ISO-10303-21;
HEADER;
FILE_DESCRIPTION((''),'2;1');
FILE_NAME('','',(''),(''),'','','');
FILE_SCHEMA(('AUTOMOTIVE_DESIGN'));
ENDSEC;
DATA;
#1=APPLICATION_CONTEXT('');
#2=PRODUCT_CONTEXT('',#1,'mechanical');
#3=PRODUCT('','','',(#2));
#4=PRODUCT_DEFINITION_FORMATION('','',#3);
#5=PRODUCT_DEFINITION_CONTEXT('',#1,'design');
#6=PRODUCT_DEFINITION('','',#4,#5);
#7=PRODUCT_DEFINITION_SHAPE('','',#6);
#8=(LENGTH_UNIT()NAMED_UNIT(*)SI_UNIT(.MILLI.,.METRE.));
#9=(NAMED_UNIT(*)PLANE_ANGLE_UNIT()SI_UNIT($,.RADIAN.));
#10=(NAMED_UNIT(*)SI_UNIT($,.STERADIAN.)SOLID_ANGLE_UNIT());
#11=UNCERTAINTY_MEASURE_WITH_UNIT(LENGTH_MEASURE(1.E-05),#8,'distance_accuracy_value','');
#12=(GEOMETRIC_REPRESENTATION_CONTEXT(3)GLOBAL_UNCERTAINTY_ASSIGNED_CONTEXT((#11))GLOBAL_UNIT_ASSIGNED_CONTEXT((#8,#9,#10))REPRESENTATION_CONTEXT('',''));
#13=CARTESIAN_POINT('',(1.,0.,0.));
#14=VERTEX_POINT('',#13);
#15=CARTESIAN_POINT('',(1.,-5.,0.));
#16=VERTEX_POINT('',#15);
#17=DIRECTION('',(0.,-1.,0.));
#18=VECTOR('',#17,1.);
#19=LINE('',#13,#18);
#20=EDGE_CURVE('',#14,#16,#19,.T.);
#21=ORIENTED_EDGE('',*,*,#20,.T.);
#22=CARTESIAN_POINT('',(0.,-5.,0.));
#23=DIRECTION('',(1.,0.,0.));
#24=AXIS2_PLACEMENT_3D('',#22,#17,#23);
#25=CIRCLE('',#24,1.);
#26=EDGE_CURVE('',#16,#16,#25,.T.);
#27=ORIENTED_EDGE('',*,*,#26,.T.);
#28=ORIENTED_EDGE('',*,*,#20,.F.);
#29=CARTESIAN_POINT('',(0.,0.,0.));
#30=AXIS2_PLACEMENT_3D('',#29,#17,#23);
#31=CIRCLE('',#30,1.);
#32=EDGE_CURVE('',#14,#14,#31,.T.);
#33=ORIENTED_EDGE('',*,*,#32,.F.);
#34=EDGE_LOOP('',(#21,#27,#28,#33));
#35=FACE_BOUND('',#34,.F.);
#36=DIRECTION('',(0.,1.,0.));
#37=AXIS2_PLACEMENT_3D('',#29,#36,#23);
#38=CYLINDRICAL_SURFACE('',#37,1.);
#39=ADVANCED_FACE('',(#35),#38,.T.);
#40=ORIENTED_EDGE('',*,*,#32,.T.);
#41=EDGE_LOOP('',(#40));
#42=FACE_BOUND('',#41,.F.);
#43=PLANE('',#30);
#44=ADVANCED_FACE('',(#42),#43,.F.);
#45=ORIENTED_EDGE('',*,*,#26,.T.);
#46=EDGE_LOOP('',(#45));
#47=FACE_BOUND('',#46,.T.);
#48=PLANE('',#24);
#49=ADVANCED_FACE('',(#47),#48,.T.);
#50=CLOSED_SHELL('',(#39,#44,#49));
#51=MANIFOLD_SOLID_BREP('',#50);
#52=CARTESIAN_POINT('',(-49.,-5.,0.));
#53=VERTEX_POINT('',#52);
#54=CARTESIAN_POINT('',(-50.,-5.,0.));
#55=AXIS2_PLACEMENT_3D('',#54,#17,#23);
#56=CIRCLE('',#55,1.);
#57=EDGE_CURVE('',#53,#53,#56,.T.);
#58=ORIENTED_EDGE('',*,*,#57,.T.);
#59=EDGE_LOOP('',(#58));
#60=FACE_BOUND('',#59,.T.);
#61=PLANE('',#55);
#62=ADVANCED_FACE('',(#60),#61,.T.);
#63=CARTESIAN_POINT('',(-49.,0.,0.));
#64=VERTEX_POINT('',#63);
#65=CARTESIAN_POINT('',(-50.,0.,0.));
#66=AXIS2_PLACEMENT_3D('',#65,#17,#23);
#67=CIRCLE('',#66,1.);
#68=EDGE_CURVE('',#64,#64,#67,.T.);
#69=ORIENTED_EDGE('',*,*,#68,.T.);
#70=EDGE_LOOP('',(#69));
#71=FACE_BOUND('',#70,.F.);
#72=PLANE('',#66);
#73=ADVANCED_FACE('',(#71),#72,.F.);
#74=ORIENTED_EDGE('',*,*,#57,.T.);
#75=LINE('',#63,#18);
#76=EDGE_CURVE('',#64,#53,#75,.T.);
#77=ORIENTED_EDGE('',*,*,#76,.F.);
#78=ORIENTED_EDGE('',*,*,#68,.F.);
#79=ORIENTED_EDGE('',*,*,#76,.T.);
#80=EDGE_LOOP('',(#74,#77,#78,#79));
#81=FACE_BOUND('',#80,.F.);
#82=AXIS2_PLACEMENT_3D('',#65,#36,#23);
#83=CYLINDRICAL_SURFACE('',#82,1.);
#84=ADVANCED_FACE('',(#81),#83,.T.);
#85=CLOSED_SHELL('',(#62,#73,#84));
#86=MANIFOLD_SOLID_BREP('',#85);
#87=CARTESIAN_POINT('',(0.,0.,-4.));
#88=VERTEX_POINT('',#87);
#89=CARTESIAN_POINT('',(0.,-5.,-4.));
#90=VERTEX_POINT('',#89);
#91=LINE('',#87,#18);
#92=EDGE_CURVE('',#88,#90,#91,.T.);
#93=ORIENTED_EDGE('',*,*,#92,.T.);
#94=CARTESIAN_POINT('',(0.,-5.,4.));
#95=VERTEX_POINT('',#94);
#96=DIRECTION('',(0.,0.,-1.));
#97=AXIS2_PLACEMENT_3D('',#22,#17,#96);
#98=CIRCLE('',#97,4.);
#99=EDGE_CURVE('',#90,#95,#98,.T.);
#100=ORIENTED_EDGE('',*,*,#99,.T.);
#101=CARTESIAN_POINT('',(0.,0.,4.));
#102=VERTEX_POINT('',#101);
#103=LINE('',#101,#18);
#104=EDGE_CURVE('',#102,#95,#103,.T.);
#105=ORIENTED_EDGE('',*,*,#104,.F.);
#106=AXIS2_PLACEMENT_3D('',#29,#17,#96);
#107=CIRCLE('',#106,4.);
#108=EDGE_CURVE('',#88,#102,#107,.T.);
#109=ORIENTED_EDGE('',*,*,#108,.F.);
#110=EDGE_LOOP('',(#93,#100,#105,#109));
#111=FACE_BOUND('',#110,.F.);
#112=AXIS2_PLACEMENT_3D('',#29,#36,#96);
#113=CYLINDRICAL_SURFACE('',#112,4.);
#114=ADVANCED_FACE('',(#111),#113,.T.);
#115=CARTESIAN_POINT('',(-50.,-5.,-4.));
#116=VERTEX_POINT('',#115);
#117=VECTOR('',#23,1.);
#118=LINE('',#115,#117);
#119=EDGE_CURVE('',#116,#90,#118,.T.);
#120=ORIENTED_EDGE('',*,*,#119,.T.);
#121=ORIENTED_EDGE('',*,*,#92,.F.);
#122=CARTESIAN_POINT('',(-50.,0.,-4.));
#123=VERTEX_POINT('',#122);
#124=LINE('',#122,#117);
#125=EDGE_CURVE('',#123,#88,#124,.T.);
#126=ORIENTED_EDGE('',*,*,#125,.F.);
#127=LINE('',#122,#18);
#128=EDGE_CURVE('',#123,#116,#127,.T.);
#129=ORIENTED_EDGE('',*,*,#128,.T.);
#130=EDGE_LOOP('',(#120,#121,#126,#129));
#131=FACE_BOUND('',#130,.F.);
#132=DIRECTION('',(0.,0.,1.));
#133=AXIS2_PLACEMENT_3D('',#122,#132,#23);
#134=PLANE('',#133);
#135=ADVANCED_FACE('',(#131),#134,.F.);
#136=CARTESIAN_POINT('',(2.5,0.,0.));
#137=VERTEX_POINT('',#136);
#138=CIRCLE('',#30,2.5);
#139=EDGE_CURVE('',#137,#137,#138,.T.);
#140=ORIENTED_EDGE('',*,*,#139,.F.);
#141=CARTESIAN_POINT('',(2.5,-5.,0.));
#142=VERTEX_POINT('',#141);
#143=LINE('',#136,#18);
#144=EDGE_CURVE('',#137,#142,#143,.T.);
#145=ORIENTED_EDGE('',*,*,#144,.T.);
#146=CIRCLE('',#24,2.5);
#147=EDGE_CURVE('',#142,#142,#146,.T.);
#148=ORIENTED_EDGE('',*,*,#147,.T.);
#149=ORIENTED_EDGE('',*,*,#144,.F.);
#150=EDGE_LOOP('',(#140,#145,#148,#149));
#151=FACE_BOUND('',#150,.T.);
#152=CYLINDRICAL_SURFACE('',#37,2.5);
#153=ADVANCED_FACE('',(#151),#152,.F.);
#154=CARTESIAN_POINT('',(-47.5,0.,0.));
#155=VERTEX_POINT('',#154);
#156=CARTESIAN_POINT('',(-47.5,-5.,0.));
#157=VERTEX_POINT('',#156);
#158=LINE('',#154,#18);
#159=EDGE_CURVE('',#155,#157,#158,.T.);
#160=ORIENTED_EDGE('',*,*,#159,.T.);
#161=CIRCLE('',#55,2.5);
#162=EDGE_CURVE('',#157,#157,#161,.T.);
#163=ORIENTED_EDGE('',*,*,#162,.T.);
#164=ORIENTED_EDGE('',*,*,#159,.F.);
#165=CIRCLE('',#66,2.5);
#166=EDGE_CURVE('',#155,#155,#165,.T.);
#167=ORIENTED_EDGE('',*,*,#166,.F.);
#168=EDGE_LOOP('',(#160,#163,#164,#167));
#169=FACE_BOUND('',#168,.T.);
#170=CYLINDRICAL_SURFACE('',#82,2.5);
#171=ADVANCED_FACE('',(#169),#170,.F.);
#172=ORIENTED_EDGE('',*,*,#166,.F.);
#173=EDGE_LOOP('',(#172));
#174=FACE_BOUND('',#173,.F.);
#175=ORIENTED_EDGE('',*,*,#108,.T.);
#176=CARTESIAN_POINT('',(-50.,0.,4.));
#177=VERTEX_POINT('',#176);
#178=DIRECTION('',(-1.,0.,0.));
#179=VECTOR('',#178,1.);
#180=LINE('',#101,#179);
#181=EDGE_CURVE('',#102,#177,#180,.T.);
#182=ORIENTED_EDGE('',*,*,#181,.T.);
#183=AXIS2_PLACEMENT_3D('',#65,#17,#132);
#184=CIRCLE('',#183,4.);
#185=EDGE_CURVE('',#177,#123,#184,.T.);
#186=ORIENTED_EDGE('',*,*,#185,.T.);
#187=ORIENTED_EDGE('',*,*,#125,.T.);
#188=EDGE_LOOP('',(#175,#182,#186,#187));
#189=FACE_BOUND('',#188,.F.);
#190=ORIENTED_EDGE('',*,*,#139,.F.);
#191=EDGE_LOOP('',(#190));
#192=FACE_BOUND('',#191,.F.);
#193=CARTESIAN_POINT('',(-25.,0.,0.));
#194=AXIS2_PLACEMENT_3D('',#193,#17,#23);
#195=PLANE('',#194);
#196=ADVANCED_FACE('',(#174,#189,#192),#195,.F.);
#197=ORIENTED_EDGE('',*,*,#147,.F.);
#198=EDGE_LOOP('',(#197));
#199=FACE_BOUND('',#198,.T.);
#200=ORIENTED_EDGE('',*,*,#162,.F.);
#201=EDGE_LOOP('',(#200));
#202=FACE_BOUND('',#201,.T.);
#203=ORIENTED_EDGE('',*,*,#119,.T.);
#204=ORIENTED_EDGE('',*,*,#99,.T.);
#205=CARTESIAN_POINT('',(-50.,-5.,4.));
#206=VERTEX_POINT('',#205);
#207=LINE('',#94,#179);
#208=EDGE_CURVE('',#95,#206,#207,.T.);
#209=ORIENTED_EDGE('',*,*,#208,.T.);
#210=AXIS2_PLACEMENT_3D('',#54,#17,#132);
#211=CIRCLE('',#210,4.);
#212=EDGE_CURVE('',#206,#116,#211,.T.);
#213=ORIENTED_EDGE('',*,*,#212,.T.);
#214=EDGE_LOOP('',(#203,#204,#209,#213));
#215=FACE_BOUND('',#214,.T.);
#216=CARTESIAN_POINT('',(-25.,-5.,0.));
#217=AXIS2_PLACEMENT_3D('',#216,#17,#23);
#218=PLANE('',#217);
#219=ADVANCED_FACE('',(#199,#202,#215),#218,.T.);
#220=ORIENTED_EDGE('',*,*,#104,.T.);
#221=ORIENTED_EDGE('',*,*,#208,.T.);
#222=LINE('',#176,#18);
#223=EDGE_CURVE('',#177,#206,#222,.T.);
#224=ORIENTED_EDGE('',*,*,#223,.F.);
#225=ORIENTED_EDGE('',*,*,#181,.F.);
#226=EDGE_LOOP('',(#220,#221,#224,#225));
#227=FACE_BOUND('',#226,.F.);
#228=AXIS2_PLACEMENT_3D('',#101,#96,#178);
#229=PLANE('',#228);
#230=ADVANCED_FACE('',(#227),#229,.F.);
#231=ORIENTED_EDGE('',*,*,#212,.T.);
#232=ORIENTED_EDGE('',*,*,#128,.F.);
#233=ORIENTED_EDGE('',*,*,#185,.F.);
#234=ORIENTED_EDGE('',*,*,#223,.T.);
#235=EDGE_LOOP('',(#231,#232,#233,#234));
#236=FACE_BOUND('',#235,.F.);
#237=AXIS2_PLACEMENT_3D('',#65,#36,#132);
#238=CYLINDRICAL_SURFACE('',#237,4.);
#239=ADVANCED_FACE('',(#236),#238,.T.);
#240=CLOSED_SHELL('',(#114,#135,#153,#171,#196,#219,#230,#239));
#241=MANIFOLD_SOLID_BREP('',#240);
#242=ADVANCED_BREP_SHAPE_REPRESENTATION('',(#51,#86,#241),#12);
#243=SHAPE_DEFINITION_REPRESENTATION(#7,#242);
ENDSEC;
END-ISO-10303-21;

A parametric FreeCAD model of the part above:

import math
import FreeCAD as App
import Part
import Sketcher

V = App.Vector
Q = App.Units.Quantity

doc = App.newDocument("Part")
body = doc.addObject("PartDesign::Body", "Body")
body.AllowCompound = True

sketch1 = body.newObject("Sketcher::SketchObject", "Sketch")
sketch1.AttachmentSupport = (doc.getObject("XZ_Plane"), [""])
sketch1.MapMode = "FlatFace"
sketch1.addGeometry(Part.LineSegment(V(-50, -4, 0), V(0, -4, 0)), False)
sketch1.addGeometry(Part.ArcOfCircle(Part.Circle(V(0, 0, 0), V(0, 0, 1), 4), math.radians(-90), math.radians(90)), False)
sketch1.addGeometry(Part.LineSegment(V(0, 4, 0), V(-50, 4, 0)), False)
sketch1.addGeometry(Part.ArcOfCircle(Part.Circle(V(-50, 0, 0), V(0, 0, 1), 4), math.radians(90), math.radians(270)), False)
sketch1.addGeometry(Part.Circle(V(-50, 0, 0), V(0, 0, 1), 2.5), False)
sketch1.addGeometry(Part.Circle(V(0, 0, 0), V(0, 0, 1), 2.5), False)
sketch1.addGeometry(Part.Circle(V(-50, 0, 0), V(0, 0, 1), 1), False)
sketch1.addGeometry(Part.Circle(V(0, 0, 0), V(0, 0, 1), 1), False)
sketch1.addConstraint(Sketcher.Constraint("Tangent", 0, 2, 1, 1))
sketch1.addConstraint(Sketcher.Constraint("Tangent", 1, 2, 2, 1))
sketch1.addConstraint(Sketcher.Constraint("Tangent", 2, 2, 3, 1))
sketch1.addConstraint(Sketcher.Constraint("Tangent", 3, 2, 0, 1))
sketch1.addConstraint(Sketcher.Constraint("Horizontal", 0))
sketch1.addConstraint(Sketcher.Constraint("Horizontal", 2))
sketch1.addConstraint(Sketcher.Constraint("Coincident", 1, 3, -1, 1))
sketch1.addConstraint(Sketcher.Constraint("Coincident", 5, 3, -1, 1))
sketch1.addConstraint(Sketcher.Constraint("Coincident", 7, 3, -1, 1))
sketch1.addConstraint(Sketcher.Constraint("Coincident", 4, 3, 3, 3))
sketch1.addConstraint(Sketcher.Constraint("Coincident", 6, 3, 3, 3))
sketch1.addConstraint(Sketcher.Constraint("Equal", 4, 5))
sketch1.addConstraint(Sketcher.Constraint("Equal", 6, 7))
sketch1.addConstraint(Sketcher.Constraint("Diameter", 4, Q("5 mm")))
sketch1.addConstraint(Sketcher.Constraint("Diameter", 6, Q("2 mm")))
sketch1.addConstraint(Sketcher.Constraint("Radius", 1, Q("4 mm")))
sketch1.addConstraint(Sketcher.Constraint("DistanceX", 0, 1, 0, 2, Q("50 mm")))
pad1 = body.newObject("PartDesign::Pad", "Pad")
pad1.Profile = sketch1
pad1.Length = 5

doc.recompute()
